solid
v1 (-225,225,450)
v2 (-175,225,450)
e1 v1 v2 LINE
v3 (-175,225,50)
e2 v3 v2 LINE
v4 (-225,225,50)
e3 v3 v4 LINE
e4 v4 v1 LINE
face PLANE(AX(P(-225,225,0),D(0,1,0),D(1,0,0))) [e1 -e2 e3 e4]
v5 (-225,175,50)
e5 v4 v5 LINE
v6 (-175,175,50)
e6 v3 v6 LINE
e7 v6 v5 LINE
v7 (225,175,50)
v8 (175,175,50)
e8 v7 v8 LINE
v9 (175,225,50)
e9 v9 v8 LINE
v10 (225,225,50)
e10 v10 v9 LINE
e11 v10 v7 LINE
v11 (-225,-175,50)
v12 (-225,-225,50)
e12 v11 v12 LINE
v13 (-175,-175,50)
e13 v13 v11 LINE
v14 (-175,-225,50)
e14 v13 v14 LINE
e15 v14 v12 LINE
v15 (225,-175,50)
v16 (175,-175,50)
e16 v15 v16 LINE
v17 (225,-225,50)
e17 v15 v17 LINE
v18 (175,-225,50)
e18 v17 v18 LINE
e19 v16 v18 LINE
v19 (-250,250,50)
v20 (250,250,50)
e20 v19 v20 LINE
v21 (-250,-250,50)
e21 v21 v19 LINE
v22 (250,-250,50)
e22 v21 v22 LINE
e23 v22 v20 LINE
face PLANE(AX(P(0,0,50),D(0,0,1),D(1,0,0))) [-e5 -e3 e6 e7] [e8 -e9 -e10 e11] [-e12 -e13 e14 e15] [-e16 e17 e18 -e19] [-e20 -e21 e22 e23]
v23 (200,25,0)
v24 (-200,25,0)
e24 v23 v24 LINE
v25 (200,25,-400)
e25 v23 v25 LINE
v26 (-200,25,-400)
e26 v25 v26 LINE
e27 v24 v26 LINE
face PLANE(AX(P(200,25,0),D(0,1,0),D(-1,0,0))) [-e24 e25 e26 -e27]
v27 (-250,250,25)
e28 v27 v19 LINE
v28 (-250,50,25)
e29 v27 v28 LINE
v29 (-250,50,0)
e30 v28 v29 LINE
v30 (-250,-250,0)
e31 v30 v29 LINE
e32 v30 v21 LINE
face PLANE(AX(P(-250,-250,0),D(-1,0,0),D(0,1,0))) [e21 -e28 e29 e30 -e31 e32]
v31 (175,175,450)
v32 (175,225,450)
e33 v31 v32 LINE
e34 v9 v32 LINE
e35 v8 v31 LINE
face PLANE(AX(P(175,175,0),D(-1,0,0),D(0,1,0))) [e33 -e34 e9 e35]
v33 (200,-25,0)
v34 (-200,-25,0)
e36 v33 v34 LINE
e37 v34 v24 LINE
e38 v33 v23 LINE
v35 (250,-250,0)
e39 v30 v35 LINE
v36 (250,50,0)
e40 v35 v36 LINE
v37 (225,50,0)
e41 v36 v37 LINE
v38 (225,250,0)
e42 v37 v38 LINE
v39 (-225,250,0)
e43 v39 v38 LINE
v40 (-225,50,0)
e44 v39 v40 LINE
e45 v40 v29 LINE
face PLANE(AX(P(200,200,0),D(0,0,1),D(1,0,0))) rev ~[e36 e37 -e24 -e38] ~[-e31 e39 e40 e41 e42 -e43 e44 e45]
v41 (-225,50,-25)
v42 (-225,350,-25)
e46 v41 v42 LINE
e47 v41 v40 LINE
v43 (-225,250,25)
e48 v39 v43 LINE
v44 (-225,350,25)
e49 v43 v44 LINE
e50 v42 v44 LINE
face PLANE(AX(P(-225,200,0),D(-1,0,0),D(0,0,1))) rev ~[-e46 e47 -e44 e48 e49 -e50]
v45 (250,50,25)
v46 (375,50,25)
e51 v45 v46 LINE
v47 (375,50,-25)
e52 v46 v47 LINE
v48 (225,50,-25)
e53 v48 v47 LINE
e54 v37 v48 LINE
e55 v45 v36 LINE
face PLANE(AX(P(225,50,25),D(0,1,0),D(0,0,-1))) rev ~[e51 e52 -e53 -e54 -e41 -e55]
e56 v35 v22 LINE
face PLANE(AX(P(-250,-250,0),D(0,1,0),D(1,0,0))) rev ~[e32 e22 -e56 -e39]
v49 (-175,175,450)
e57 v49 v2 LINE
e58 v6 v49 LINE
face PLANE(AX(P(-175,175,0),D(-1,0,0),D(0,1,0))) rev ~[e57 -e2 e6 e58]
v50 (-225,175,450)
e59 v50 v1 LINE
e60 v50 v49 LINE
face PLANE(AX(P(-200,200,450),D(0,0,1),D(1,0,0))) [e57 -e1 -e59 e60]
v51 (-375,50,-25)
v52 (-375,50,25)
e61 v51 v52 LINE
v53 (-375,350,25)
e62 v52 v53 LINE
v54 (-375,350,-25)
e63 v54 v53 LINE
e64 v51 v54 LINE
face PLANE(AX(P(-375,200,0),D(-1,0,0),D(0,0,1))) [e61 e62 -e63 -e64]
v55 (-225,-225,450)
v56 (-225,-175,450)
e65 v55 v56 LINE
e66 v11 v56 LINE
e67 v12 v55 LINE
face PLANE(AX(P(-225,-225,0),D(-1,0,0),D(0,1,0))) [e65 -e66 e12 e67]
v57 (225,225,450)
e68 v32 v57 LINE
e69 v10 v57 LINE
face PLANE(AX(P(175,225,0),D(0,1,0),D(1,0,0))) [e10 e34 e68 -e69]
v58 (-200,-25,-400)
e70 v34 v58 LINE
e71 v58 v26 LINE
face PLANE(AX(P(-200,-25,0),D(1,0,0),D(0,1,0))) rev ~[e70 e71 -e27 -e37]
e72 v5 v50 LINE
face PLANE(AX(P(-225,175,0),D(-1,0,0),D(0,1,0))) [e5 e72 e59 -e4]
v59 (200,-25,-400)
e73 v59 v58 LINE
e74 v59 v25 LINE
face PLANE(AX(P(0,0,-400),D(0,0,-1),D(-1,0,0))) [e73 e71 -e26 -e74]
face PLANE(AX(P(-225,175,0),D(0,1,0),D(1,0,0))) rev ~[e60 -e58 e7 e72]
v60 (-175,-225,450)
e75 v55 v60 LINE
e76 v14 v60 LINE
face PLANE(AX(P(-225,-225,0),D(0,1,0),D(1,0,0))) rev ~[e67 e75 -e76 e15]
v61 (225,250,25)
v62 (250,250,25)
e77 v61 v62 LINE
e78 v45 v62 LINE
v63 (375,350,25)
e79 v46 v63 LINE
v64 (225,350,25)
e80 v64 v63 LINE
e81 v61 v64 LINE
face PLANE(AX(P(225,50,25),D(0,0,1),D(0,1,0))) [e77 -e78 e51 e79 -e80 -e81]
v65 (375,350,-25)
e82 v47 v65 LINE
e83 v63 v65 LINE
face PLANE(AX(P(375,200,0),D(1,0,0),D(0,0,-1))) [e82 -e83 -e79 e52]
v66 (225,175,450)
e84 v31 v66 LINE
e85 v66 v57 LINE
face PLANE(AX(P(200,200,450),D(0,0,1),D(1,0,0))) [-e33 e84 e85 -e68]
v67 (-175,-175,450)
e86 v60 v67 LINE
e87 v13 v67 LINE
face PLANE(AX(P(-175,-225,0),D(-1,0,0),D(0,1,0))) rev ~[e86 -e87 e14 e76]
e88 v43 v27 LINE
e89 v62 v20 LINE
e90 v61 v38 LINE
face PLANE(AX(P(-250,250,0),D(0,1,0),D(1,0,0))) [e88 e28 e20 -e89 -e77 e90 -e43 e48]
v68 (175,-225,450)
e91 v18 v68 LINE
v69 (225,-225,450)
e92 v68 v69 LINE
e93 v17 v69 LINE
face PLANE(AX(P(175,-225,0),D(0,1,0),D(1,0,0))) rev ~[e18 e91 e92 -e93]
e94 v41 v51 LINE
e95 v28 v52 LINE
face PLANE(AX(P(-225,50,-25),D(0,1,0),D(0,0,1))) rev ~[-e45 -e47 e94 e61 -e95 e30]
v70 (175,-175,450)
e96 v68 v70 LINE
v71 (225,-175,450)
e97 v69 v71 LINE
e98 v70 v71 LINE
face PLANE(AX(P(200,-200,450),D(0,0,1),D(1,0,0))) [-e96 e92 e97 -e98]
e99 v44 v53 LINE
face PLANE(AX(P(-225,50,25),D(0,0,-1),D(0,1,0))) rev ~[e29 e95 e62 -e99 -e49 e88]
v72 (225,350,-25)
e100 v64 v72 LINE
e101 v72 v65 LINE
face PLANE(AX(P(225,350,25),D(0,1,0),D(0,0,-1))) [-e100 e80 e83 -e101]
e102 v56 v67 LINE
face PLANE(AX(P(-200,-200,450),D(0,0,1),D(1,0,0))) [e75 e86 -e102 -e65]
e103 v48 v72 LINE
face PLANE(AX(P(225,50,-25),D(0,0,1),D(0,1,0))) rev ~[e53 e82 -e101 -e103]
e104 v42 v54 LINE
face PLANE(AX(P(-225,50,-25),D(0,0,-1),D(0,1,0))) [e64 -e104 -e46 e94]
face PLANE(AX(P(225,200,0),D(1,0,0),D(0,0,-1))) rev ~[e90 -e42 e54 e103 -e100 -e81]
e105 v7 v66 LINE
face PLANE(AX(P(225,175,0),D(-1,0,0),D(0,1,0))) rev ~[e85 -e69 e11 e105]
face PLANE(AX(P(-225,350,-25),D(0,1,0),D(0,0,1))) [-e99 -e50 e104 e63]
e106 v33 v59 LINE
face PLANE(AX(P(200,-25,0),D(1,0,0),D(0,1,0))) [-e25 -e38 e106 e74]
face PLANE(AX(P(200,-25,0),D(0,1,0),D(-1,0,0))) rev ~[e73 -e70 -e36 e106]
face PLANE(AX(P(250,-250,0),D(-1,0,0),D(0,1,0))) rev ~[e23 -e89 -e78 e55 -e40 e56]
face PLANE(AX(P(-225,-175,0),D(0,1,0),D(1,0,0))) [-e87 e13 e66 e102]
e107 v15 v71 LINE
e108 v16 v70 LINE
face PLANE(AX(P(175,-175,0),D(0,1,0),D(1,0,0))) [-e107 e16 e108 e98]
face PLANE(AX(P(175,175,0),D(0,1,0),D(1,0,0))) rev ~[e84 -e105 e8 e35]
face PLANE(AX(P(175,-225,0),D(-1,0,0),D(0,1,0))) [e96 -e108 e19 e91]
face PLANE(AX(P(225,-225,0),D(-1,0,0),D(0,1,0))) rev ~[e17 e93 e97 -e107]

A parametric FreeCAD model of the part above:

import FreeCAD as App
import Part
import Sketcher

doc = App.newDocument("Part")
params = doc.addObject("Spreadsheet::Sheet", "Params")
for row, (alias, value) in enumerate([
    ("sketch1_width", "500 mm"),
    ("pad1_length", "50 mm"),
    ("sketch2_width", "50 mm"),
    ("pad2_length", "450 mm"),
    ("sketch3_width", "50 mm"),
    ("pad3_length", "450 mm"),
    ("sketch4_width", "50 mm"),
    ("pad4_length", "450 mm"),
    ("sketch5_width", "50 mm"),
    ("pad5_length", "450 mm"),
    ("sketch6_width", "400 mm"),
    ("sketch6_height", "50 mm"),
    ("pad6_length", "400 mm"),
    ("sketch7_width", "300 mm"),
    ("sketch7_height", "50 mm"),
    ("pad7_length", "150 mm"),
    ("sketch8_width", "300 mm"),
    ("sketch8_height", "50 mm"),
    ("pad8_length", "150 mm"),
], start=1):
    params.set(f"A{row}", alias)
    params.set(f"B{row}", "=" + value)
    params.setAlias(f"B{row}", alias)

body = doc.addObject("PartDesign::Body", "Body")

sketch1 = body.newObject("Sketcher::SketchObject", "Sketch")
sketch1.AttachmentSupport = (doc.getObject("XY_Plane"), [""])
sketch1.MapMode = "FlatFace"
sketch1.addGeometry(Part.LineSegment(App.Vector(-250, 250, 0), App.Vector(-250, -250, 0)), False)
sketch1.addGeometry(Part.LineSegment(App.Vector(-250, -250, 0), App.Vector(250, -250, 0)), False)
sketch1.addGeometry(Part.LineSegment(App.Vector(250, -250, 0), App.Vector(250, 250, 0)), False)
sketch1.addGeometry(Part.LineSegment(App.Vector(250, 250, 0), App.Vector(-250, 250, 0)), False)
sketch1.addConstraint(Sketcher.Constraint("Coincident", 0, 2, 1, 1))
sketch1.addConstraint(Sketcher.Constraint("Coincident", 1, 2, 2, 1))
sketch1.addConstraint(Sketcher.Constraint("Coincident", 2, 2, 3, 1))
sketch1.addConstraint(Sketcher.Constraint("Coincident", 3, 2, 0, 1))
sketch1.addConstraint(Sketcher.Constraint("Vertical", 0))
sketch1.addConstraint(Sketcher.Constraint("Horizontal", 1))
sketch1.addConstraint(Sketcher.Constraint("Vertical", 2))
sketch1.addConstraint(Sketcher.Constraint("Horizontal", 3))
sketch1.addConstraint(Sketcher.Constraint("Symmetric", 0, 2, 2, 2, -1, 1))
sketch1.addConstraint(Sketcher.Constraint("Equal", 3, 0))
sketch1.addConstraint(Sketcher.Constraint("DistanceX", 1, 1, 1, 2, 500.0))
sketch1.setExpression("Constraints[10]", "Params.sketch1_width")
pad1 = body.newObject("PartDesign::Pad", "Pad")
pad1.Profile = sketch1
pad1.setExpression("Length", "Params.pad1_length")

sketch2 = body.newObject("Sketcher::SketchObject", "Sketch001")
sketch2.AttachmentSupport = (doc.getObject("XY_Plane"), [""])
sketch2.MapMode = "FlatFace"
sketch2.addGeometry(Part.LineSegment(App.Vector(-225, -175, 0), App.Vector(-225, -225, 0)), False)
sketch2.addGeometry(Part.LineSegment(App.Vector(-225, -225, 0), App.Vector(-175, -225, 0)), False)
sketch2.addGeometry(Part.LineSegment(App.Vector(-175, -225, 0), App.Vector(-175, -175, 0)), False)
sketch2.addGeometry(Part.LineSegment(App.Vector(-175, -175, 0), App.Vector(-225, -175, 0)), False)
sketch2.addConstraint(Sketcher.Constraint("Coincident", 0, 2, 1, 1))
sketch2.addConstraint(Sketcher.Constraint("Coincident", 1, 2, 2, 1))
sketch2.addConstraint(Sketcher.Constraint("Coincident", 2, 2, 3, 1))
sketch2.addConstraint(Sketcher.Constraint("Coincident", 3, 2, 0, 1))
sketch2.addConstraint(Sketcher.Constraint("Vertical", 0))
sketch2.addConstraint(Sketcher.Constraint("Horizontal", 1))
sketch2.addConstraint(Sketcher.Constraint("Vertical", 2))
sketch2.addConstraint(Sketcher.Constraint("Horizontal", 3))
sketch2.addConstraint(Sketcher.Constraint("Equal", 3, 0))
sketch2.addConstraint(Sketcher.Constraint("DistanceX", 1, 1, 1, 2, 50.0))
sketch2.addConstraint(Sketcher.Constraint("DistanceX", 0, 2, -1, 1, 225.0))
sketch2.addConstraint(Sketcher.Constraint("DistanceY", 0, 2, -1, 1, 225.0))
sketch2.setExpression("Constraints[9]", "Params.sketch2_width")
pad2 = body.newObject("PartDesign::Pad", "Pad001")
pad2.Profile = sketch2
pad2.setExpression("Length", "Params.pad2_length")

sketch3 = body.newObject("Sketcher::SketchObject", "Sketch002")
sketch3.AttachmentSupport = (doc.getObject("XY_Plane"), [""])
sketch3.MapMode = "FlatFace"
sketch3.addGeometry(Part.LineSegment(App.Vector(175, -175, 0), App.Vector(175, -225, 0)), False)
sketch3.addGeometry(Part.LineSegment(App.Vector(175, -225, 0), App.Vector(225, -225, 0)), False)
sketch3.addGeometry(Part.LineSegment(App.Vector(225, -225, 0), App.Vector(225, -175, 0)), False)
sketch3.addGeometry(Part.LineSegment(App.Vector(225, -175, 0), App.Vector(175, -175, 0)), False)
sketch3.addConstraint(Sketcher.Constraint("Coincident", 0, 2, 1, 1))
sketch3.addConstraint(Sketcher.Constraint("Coincident", 1, 2, 2, 1))
sketch3.addConstraint(Sketcher.Constraint("Coincident", 2, 2, 3, 1))
sketch3.addConstraint(Sketcher.Constraint("Coincident", 3, 2, 0, 1))
sketch3.addConstraint(Sketcher.Constraint("Vertical", 0))
sketch3.addConstraint(Sketcher.Constraint("Horizontal", 1))
sketch3.addConstraint(Sketcher.Constraint("Vertical", 2))
sketch3.addConstraint(Sketcher.Constraint("Horizontal", 3))
sketch3.addConstraint(Sketcher.Constraint("Equal", 3, 0))
sketch3.addConstraint(Sketcher.Constraint("DistanceX", 1, 1, 1, 2, 50.0))
sketch3.addConstraint(Sketcher.Constraint("DistanceX", -1, 1, 0, 2, 175.0))
sketch3.addConstraint(Sketcher.Constraint("DistanceY", 0, 2, -1, 1, 225.0))
sketch3.setExpression("Constraints[9]", "Params.sketch3_width")
pad3 = body.newObject("PartDesign::Pad", "Pad002")
pad3.Profile = sketch3
pad3.setExpression("Length", "Params.pad3_length")

sketch4 = body.newObject("Sketcher::SketchObject", "Sketch003")
sketch4.AttachmentSupport = (doc.getObject("XY_Plane"), [""])
sketch4.MapMode = "FlatFace"
sketch4.addGeometry(Part.LineSegment(App.Vector(-225, 225, 0), App.Vector(-225, 175, 0)), False)
sketch4.addGeometry(Part.LineSegment(App.Vector(-225, 175, 0), App.Vector(-175, 175, 0)), False)
sketch4.addGeometry(Part.LineSegment(App.Vector(-175, 175, 0), App.Vector(-175, 225, 0)), False)
sketch4.addGeometry(Part.LineSegment(App.Vector(-175, 225, 0), App.Vector(-225, 225, 0)), False)
sketch4.addConstraint(Sketcher.Constraint("Coincident", 0, 2, 1, 1))
sketch4.addConstraint(Sketcher.Constraint("Coincident", 1, 2, 2, 1))
sketch4.addConstraint(Sketcher.Constraint("Coincident", 2, 2, 3, 1))
sketch4.addConstraint(Sketcher.Constraint("Coincident", 3, 2, 0, 1))
sketch4.addConstraint(Sketcher.Constraint("Vertical", 0))
sketch4.addConstraint(Sketcher.Constraint("Horizontal", 1))
sketch4.addConstraint(Sketcher.Constraint("Vertical", 2))
sketch4.addConstraint(Sketcher.Constraint("Horizontal", 3))
sketch4.addConstraint(Sketcher.Constraint("Equal", 3, 0))
sketch4.addConstraint(Sketcher.Constraint("DistanceX", 1, 1, 1, 2, 50.0))
sketch4.addConstraint(Sketcher.Constraint("DistanceX", 0, 2, -1, 1, 225.0))
sketch4.addConstraint(Sketcher.Constraint("DistanceY", -1, 1, 0, 2, 175.0))
sketch4.setExpression("Constraints[9]", "Params.sketch4_width")
pad4 = body.newObject("PartDesign::Pad", "Pad003")
pad4.Profile = sketch4
pad4.setExpression("Length", "Params.pad4_length")

sketch5 = body.newObject("Sketcher::SketchObject", "Sketch004")
sketch5.AttachmentSupport = (doc.getObject("XY_Plane"), [""])
sketch5.MapMode = "FlatFace"
sketch5.addGeometry(Part.LineSegment(App.Vector(175, 225, 0), App.Vector(175, 175, 0)), False)
sketch5.addGeometry(Part.LineSegment(App.Vector(175, 175, 0), App.Vector(225, 175, 0)), False)
sketch5.addGeometry(Part.LineSegment(App.Vector(225, 175, 0), App.Vector(225, 225, 0)), False)
sketch5.addGeometry(Part.LineSegment(App.Vector(225, 225, 0), App.Vector(175, 225, 0)), False)
sketch5.addConstraint(Sketcher.Constraint("Coincident", 0, 2, 1, 1))
sketch5.addConstraint(Sketcher.Constraint("Coincident", 1, 2, 2, 1))
sketch5.addConstraint(Sketcher.Constraint("Coincident", 2, 2, 3, 1))
sketch5.addConstraint(Sketcher.Constraint("Coincident", 3, 2, 0, 1))
sketch5.addConstraint(Sketcher.Constraint("Vertical", 0))
sketch5.addConstraint(Sketcher.Constraint("Horizontal", 1))
sketch5.addConstraint(Sketcher.Constraint("Vertical", 2))
sketch5.addConstraint(Sketcher.Constraint("Horizontal", 3))
sketch5.addConstraint(Sketcher.Constraint("Equal", 3, 0))
sketch5.addConstraint(Sketcher.Constraint("DistanceX", 1, 1, 1, 2, 50.0))
sketch5.addConstraint(Sketcher.Constraint("DistanceX", -1, 1, 0, 2, 175.0))
sketch5.addConstraint(Sketcher.Constraint("DistanceY", -1, 1, 0, 2, 175.0))
sketch5.setExpression("Constraints[9]", "Params.sketch5_width")
pad5 = body.newObject("PartDesign::Pad", "Pad004")
pad5.Profile = sketch5
pad5.setExpression("Length", "Params.pad5_length")

sketch6 = body.newObject("Sketcher::SketchObject", "Sketch005")
sketch6.AttachmentSupport = (doc.getObject("XY_Plane"), [""])
sketch6.MapMode = "FlatFace"
sketch6.addGeometry(Part.LineSegment(App.Vector(200, 25, 0), App.Vector(200, -25, 0)), False)
sketch6.addGeometry(Part.LineSegment(App.Vector(200, -25, 0), App.Vector(-200, -25, 0)), False)
sketch6.addGeometry(Part.LineSegment(App.Vector(-200, -25, 0), App.Vector(-200, 25, 0)), False)
sketch6.addGeometry(Part.LineSegment(App.Vector(-200, 25, 0), App.Vector(200, 25, 0)), False)
sketch6.addConstraint(Sketcher.Constraint("Coincident", 0, 2, 1, 1))
sketch6.addConstraint(Sketcher.Constraint("Coincident", 1, 2, 2, 1))
sketch6.addConstraint(Sketcher.Constraint("Coincident", 2, 2, 3, 1))
sketch6.addConstraint(Sketcher.Constraint("Coincident", 3, 2, 0, 1))
sketch6.addConstraint(Sketcher.Constraint("Vertical", 0))
sketch6.addConstraint(Sketcher.Constraint("Horizontal", 1))
sketch6.addConstraint(Sketcher.Constraint("Vertical", 2))
sketch6.addConstraint(Sketcher.Constraint("Horizontal", 3))
sketch6.addConstraint(Sketcher.Constraint("Symmetric", 0, 2, 2, 2, -1, 1))
sketch6.addConstraint(Sketcher.Constraint("DistanceX", 1, 2, 1, 1, 400.0))
sketch6.addConstraint(Sketcher.Constraint("DistanceY", 0, 2, 0, 1, 50.0))
sketch6.setExpression("Constraints[9]", "Params.sketch6_width")
sketch6.setExpression("Constraints[10]", "Params.sketch6_height")
pad6 = body.newObject("PartDesign::Pad", "Pad005")
pad6.Profile = sketch6
pad6.setExpression("Length", "Params.pad6_length")
pad6.Reversed = True

sketch7 = body.newObject("Sketcher::SketchObject", "Sketch006")
sketch7.AttachmentSupport = (doc.getObject("YZ_Plane"), [""])
sketch7.MapMode = "FlatFace"
sketch7.AttachmentOffset = App.Placement(App.Vector(0, 0, 225), App.Rotation())
sketch7.addGeometry(Part.LineSegment(App.Vector(350, 25, 0), App.Vector(50, 25, 0)), False)
sketch7.addGeometry(Part.LineSegment(App.Vector(50, 25, 0), App.Vector(50, -25, 0)), False)
sketch7.addGeometry(Part.LineSegment(App.Vector(50, -25, 0), App.Vector(350, -25, 0)), False)
sketch7.addGeometry(Part.LineSegment(App.Vector(350, -25, 0), App.Vector(350, 25, 0)), False)
sketch7.addConstraint(Sketcher.Constraint("Coincident", 0, 2, 1, 1))
sketch7.addConstraint(Sketcher.Constraint("Coincident", 1, 2, 2, 1))
sketch7.addConstraint(Sketcher.Constraint("Coincident", 2, 2, 3, 1))
sketch7.addConstraint(Sketcher.Constraint("Coincident", 3, 2, 0, 1))
sketch7.addConstraint(Sketcher.Constraint("Horizontal", 0))
sketch7.addConstraint(Sketcher.Constraint("Vertical", 1))
sketch7.addConstraint(Sketcher.Constraint("Horizontal", 2))
sketch7.addConstraint(Sketcher.Constraint("Vertical", 3))
sketch7.addConstraint(Sketcher.Constraint("DistanceX", 0, 2, 0, 1, 300.0))
sketch7.addConstraint(Sketcher.Constraint("DistanceY", 1, 2, 1, 1, 50.0))
sketch7.addConstraint(Sketcher.Constraint("DistanceX", -1, 1, 0, 2, 50.0))
sketch7.addConstraint(Sketcher.Constraint("DistanceY", -1, 1, 0, 2, 25.0))
sketch7.setExpression("Constraints[8]", "Params.sketch7_width")
sketch7.setExpression("Constraints[9]", "Params.sketch7_height")
pad7 = body.newObject("PartDesign::Pad", "Pad006")
pad7.Profile = sketch7
pad7.setExpression("Length", "Params.pad7_length")

sketch8 = body.newObject("Sketcher::SketchObject", "Sketch007")
sketch8.AttachmentSupport = (doc.getObject("YZ_Plane"), [""])
sketch8.MapMode = "FlatFace"
sketch8.AttachmentOffset = App.Placement(App.Vector(0, 0, -225), App.Rotation())
sketch8.addGeometry(Part.LineSegment(App.Vector(350, -25, 0), App.Vector(50, -25, 0)), False)
sketch8.addGeometry(Part.LineSegment(App.Vector(50, -25, 0), App.Vector(50, 25, 0)), False)
sketch8.addGeometry(Part.LineSegment(App.Vector(50, 25, 0), App.Vector(350, 25, 0)), False)
sketch8.addGeometry(Part.LineSegment(App.Vector(350, 25, 0), App.Vector(350, -25, 0)), False)
sketch8.addConstraint(Sketcher.Constraint("Coincident", 0, 2, 1, 1))
sketch8.addConstraint(Sketcher.Constraint("Coincident", 1, 2, 2, 1))
sketch8.addConstraint(Sketcher.Constraint("Coincident", 2, 2, 3, 1))
sketch8.addConstraint(Sketcher.Constraint("Coincident", 3, 2, 0, 1))
sketch8.addConstraint(Sketcher.Constraint("Horizontal", 0))
sketch8.addConstraint(Sketcher.Constraint("Vertical", 1))
sketch8.addConstraint(Sketcher.Constraint("Horizontal", 2))
sketch8.addConstraint(Sketcher.Constraint("Vertical", 3))
sketch8.addConstraint(Sketcher.Constraint("DistanceX", 0, 2, 0, 1, 300.0))
sketch8.addConstraint(Sketcher.Constraint("DistanceY", 1, 1, 1, 2, 50.0))
sketch8.addConstraint(Sketcher.Constraint("DistanceX", -1, 1, 0, 2, 50.0))
sketch8.addConstraint(Sketcher.Constraint("DistanceY", 0, 2, -1, 1, 25.0))
sketch8.setExpression("Constraints[8]", "Params.sketch8_width")
sketch8.setExpression("Constraints[9]", "Params.sketch8_height")
pad8 = body.newObject("PartDesign::Pad", "Pad007")
pad8.Profile = sketch8
pad8.setExpression("Length", "Params.pad8_length")
pad8.Reversed = True

doc.recompute()
